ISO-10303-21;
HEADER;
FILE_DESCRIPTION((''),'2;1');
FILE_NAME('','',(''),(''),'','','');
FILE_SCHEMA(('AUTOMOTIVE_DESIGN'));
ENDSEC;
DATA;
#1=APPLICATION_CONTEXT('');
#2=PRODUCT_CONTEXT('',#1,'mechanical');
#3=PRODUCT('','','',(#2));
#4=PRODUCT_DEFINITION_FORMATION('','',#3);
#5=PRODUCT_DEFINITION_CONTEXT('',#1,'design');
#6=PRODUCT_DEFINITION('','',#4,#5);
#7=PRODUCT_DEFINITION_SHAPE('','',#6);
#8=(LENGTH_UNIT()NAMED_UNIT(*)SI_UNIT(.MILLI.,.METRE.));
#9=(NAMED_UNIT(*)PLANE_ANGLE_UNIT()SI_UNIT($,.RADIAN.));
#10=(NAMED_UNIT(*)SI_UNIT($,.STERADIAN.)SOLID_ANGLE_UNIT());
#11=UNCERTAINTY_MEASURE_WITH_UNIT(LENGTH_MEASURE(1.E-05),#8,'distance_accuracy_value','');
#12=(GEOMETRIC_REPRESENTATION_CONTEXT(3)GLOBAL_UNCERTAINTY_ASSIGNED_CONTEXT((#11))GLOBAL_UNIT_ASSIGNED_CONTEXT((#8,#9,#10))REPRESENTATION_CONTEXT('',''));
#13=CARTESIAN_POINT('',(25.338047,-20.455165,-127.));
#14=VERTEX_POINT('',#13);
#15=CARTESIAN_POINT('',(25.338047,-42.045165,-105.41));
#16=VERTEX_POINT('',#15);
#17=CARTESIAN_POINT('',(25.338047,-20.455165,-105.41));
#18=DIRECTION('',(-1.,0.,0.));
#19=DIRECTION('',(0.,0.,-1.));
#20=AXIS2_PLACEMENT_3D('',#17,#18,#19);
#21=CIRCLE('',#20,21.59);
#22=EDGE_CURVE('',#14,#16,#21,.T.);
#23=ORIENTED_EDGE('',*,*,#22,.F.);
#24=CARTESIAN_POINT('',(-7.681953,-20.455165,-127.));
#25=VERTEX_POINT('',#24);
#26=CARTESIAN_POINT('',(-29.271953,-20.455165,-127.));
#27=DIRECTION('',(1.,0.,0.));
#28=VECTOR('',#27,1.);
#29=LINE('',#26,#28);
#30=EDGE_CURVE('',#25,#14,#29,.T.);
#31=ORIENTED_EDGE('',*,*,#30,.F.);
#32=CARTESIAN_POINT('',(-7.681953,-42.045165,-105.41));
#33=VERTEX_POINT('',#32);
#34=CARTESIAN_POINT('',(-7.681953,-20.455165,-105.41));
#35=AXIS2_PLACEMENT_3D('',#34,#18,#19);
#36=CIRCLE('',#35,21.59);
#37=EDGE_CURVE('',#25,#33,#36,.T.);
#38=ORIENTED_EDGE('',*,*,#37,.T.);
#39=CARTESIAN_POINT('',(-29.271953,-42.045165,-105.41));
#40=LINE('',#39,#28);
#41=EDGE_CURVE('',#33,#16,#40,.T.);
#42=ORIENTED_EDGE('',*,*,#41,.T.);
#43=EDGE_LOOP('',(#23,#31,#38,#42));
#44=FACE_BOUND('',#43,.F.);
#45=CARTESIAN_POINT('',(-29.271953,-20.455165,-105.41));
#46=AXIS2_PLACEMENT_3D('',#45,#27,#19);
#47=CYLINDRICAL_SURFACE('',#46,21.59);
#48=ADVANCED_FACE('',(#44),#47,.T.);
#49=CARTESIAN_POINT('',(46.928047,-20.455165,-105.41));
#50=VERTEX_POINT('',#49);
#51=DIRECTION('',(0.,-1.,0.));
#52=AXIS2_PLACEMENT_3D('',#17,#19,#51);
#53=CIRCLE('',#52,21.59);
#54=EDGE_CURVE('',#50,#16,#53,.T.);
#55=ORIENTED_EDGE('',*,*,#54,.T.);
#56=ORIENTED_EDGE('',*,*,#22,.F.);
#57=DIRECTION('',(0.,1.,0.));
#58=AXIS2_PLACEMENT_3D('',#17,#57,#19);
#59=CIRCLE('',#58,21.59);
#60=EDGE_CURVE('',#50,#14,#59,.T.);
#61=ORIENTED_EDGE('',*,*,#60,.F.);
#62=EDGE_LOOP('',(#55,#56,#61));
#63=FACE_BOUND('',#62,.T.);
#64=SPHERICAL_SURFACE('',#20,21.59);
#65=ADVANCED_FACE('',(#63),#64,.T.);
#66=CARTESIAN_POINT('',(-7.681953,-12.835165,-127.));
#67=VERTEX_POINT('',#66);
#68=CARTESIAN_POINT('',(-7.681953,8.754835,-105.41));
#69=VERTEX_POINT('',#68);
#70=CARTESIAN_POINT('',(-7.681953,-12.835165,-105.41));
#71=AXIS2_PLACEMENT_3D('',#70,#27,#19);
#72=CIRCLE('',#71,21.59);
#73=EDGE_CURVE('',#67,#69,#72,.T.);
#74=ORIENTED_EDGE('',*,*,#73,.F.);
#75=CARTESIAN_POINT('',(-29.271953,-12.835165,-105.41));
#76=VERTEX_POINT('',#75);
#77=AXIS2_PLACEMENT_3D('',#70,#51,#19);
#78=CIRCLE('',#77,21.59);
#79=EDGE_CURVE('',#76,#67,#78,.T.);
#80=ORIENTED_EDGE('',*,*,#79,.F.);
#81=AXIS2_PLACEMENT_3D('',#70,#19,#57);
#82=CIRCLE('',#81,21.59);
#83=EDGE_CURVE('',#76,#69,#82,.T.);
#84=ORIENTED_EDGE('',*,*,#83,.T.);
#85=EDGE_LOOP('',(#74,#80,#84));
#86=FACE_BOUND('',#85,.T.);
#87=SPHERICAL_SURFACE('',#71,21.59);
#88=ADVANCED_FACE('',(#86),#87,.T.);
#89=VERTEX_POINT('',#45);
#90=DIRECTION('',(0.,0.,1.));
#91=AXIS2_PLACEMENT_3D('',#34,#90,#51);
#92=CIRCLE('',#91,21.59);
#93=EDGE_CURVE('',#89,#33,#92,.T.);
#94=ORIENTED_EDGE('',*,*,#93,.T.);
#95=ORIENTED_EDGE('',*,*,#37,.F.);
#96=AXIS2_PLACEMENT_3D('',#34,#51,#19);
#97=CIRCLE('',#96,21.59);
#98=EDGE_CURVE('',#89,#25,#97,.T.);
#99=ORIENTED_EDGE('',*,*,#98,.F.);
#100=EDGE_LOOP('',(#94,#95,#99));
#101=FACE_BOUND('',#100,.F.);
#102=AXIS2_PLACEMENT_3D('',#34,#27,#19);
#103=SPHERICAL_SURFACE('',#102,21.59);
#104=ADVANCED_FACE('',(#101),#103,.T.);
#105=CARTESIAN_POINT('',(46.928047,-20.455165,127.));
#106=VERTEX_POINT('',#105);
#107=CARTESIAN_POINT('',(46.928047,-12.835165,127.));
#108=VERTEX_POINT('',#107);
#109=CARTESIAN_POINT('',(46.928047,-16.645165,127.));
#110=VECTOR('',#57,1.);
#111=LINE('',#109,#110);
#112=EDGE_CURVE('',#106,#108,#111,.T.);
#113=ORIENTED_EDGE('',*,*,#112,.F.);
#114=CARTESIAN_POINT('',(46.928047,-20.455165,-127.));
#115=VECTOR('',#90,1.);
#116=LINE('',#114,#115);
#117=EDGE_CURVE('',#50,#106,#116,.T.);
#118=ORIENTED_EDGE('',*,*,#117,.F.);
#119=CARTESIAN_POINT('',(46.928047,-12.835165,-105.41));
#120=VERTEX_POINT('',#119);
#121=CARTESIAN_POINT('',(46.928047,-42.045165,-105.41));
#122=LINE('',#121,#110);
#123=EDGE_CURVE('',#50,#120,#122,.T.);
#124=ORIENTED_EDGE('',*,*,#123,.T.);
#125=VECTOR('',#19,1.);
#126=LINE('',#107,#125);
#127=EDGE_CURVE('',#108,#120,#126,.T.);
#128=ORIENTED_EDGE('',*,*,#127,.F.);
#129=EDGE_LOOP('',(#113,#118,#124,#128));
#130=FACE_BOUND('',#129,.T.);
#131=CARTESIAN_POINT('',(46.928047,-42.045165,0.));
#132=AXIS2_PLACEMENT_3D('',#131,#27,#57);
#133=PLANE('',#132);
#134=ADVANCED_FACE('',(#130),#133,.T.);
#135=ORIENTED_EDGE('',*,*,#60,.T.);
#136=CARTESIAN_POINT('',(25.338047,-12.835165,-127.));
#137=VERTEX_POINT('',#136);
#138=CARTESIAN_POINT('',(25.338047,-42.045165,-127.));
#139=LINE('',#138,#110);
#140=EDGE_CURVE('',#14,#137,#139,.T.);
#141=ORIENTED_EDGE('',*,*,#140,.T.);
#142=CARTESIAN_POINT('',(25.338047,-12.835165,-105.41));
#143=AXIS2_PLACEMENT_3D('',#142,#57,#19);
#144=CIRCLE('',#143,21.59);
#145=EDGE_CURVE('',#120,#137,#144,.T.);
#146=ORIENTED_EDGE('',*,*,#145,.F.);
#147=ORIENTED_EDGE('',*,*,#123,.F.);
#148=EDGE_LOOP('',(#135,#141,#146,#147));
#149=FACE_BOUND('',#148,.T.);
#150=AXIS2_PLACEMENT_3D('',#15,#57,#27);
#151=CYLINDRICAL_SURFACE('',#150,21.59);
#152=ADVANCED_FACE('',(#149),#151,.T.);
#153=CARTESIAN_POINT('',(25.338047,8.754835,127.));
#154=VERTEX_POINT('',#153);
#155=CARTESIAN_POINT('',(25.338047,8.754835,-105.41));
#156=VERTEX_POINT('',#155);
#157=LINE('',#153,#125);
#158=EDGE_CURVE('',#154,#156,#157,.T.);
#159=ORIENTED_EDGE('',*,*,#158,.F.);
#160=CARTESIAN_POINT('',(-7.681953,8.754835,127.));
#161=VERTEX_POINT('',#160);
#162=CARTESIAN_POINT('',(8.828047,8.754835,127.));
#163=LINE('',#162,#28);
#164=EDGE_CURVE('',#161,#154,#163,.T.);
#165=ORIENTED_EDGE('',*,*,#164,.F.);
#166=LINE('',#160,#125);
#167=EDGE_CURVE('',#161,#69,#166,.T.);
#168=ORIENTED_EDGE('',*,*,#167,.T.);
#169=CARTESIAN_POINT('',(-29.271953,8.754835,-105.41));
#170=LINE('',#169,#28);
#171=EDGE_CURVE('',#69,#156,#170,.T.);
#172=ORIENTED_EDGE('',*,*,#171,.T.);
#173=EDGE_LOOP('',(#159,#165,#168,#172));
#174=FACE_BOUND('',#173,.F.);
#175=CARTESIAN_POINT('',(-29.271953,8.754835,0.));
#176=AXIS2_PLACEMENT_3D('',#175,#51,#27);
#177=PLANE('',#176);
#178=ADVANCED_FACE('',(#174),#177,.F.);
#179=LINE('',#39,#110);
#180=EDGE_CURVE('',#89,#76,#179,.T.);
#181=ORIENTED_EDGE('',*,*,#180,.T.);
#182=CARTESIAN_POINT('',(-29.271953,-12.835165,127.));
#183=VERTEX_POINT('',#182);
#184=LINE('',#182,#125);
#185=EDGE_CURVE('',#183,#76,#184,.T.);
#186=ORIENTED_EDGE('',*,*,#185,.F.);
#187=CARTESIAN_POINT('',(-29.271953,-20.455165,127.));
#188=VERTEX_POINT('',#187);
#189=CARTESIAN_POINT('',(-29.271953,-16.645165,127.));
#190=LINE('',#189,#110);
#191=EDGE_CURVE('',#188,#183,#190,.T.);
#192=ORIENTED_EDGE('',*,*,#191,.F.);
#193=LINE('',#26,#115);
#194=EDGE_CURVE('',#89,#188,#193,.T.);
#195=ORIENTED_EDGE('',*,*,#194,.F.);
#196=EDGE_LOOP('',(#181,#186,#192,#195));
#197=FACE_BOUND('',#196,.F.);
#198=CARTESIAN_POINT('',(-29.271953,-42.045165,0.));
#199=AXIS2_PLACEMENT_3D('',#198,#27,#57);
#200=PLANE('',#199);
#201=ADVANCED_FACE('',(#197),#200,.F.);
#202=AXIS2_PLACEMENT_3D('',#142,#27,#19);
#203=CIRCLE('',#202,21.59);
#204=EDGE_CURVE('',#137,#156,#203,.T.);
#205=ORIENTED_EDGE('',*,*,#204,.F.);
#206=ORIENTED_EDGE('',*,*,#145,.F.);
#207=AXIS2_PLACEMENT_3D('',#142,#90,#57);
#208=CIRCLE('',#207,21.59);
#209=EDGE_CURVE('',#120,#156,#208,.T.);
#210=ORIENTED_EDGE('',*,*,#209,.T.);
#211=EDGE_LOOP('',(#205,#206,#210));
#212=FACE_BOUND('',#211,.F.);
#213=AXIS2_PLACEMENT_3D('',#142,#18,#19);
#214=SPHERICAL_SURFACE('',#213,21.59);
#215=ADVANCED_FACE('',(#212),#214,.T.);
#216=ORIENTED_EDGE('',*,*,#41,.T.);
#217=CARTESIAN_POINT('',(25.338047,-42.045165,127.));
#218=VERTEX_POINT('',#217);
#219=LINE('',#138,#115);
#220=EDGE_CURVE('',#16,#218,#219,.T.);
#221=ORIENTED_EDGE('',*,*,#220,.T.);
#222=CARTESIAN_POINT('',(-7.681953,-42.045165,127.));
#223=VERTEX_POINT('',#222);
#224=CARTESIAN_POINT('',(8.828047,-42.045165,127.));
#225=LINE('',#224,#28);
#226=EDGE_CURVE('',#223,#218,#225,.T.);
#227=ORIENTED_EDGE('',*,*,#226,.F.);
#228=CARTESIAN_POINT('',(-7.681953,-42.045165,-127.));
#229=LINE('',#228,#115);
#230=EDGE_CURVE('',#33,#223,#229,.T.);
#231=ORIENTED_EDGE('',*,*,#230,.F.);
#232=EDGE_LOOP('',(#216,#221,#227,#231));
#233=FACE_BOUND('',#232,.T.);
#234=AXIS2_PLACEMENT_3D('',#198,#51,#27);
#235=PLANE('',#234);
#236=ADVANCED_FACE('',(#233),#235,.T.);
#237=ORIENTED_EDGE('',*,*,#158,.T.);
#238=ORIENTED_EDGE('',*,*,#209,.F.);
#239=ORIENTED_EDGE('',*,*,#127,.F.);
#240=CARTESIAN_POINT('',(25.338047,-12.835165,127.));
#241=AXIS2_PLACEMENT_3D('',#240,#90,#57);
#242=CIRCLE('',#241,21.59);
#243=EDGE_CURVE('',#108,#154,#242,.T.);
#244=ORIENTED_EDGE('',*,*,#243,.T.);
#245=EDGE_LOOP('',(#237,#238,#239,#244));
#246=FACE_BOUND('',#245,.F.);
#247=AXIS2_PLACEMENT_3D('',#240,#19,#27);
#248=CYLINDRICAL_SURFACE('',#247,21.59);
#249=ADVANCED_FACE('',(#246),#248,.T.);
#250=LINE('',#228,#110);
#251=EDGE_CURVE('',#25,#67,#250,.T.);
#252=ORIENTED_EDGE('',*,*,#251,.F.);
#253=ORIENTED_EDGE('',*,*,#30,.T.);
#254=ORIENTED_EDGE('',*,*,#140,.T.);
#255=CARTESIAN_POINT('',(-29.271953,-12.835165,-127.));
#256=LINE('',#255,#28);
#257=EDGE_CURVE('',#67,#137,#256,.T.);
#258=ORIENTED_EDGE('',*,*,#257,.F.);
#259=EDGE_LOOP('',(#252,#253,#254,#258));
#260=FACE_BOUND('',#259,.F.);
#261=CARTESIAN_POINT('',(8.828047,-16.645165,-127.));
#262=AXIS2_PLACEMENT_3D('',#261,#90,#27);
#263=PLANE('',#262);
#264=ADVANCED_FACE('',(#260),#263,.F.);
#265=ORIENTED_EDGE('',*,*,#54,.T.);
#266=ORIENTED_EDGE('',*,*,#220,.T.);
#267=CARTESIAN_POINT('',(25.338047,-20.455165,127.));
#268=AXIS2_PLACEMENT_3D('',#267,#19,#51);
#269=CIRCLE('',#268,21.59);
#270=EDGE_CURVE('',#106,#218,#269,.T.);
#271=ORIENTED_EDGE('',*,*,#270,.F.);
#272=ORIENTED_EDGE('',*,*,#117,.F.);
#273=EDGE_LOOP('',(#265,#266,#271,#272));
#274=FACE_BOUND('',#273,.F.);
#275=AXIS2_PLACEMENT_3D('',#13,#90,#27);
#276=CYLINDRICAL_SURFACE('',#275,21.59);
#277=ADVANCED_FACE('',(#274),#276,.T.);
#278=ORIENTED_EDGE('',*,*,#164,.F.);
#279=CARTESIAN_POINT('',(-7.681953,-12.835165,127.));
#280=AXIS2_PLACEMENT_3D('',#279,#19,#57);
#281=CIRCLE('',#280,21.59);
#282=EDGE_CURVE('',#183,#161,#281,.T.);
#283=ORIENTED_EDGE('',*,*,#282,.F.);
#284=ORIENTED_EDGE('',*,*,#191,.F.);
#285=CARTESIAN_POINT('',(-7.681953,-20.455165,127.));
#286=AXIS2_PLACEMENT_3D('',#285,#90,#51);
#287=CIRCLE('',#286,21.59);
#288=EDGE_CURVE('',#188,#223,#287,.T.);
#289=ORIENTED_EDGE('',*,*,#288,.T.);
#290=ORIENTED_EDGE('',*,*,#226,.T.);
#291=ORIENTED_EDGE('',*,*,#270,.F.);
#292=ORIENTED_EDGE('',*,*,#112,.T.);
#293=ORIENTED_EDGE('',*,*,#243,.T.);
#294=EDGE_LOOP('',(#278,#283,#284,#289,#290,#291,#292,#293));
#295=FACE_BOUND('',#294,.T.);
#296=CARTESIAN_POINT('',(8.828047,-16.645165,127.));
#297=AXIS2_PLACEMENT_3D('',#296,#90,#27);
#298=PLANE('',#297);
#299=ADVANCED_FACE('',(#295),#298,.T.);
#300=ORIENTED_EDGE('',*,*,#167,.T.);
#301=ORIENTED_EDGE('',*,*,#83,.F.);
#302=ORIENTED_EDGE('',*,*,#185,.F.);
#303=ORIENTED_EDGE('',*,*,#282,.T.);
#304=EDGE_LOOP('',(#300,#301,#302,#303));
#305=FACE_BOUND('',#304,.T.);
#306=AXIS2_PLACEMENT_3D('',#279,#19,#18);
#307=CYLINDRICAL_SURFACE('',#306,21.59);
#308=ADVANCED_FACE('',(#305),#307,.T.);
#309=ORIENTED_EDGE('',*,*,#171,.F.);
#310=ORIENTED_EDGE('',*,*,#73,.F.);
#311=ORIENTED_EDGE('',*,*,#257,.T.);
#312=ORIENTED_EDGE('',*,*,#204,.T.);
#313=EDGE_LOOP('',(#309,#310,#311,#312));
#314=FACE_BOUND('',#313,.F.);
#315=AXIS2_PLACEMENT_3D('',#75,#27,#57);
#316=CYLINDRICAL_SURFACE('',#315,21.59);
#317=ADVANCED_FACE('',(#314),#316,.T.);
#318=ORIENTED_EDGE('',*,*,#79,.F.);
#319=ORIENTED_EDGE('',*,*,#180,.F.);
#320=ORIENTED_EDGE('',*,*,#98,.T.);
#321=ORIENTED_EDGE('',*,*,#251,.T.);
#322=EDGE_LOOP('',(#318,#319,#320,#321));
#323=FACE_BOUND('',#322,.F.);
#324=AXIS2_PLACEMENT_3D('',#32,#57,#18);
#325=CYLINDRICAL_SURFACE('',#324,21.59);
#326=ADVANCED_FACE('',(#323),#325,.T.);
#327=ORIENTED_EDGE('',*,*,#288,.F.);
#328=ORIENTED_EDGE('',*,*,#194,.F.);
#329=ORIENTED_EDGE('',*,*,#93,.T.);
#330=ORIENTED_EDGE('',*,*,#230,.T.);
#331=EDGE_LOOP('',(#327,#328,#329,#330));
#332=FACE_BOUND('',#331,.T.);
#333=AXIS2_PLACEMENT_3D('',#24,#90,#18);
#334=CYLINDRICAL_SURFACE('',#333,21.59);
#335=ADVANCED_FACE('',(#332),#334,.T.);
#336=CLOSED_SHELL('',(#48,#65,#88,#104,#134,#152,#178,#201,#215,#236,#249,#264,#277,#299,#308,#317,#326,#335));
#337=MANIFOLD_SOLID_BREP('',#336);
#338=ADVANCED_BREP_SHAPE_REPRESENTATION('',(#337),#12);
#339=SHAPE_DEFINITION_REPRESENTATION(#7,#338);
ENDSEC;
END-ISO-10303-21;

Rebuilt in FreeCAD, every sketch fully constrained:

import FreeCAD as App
import Part
import Sketcher
Q = App.Units.Quantity


def edges_at(feature, points):
    """Names of the edges that pass closest to the given points."""
    edges = feature.Shape.Edges
    near = lambda p: min(range(len(edges)), key=lambda i: edges[i].distToShape(Part.Vertex(*p))[0])
    return sorted({f"Edge{near(p) + 1}" for p in points})


def add_polygon(sketch, points):
    """Adds a closed chain of lines whose ends are joined by coincident constraints."""
    first, n = sketch.GeometryCount, len(points)
    for a, b in zip(points, points[1:] + points[:1]):
        sketch.addGeometry(Part.LineSegment(App.Vector(*a, 0), App.Vector(*b, 0)), False)
    for i in range(n):
        sketch.addConstraint(Sketcher.Constraint("Coincident", first + i, 2, first + (i + 1) % n, 1))

doc = App.newDocument("Part")
body = doc.addObject("PartDesign::Body", "Body")

# Sketch on XY plane
sketch1 = body.newObject("Sketcher::SketchObject", "Sketch")
sketch1.AttachmentSupport = (doc.getObject("XY_Plane"), [""])
sketch1.MapMode = "FlatFace"
add_polygon(sketch1, [(-29, 9), (-29, -42), (47, -42), (47, 9)])  # lines 0-3
sketch1.addConstraint([
    Sketcher.Constraint("Vertical", 0),
    Sketcher.Constraint("Horizontal", 1),
    Sketcher.Constraint("Vertical", 2),
    Sketcher.Constraint("Horizontal", 3),
    Sketcher.Constraint("DistanceX", 1, 1, 1, 2, Q("3 in")),
    Sketcher.Constraint("DistanceY", 0, 2, 0, 1, Q("2 in")),
    Sketcher.Constraint("DistanceX", 0, 2, -1, 1, Q("29.271953 mm")),
    Sketcher.Constraint("DistanceY", 0, 2, -1, 1, Q("42.045165 mm")),
])
pad1 = body.newObject("PartDesign::Pad", "Pad")
pad1.Profile = sketch1
pad1.Length = Q("10 in")
pad1.Midplane = True
doc.recompute()

fillet = body.newObject("PartDesign::Fillet", "Fillet")
fillet.Base = (pad1, edges_at(pad1, [
    (8.828, -42.045, -127),
    (8.828, 8.755, -127),
    (46.928, -16.645, -127),
    (-29.272, -16.645, -127),
    (-29.272, 8.755, 0),
    (-29.272, -42.045, 0),
    (46.928, -42.045, 0),
    (46.928, 8.755, 0),
]))
fillet.Radius = Q("0.85 in")

doc.recompute()
